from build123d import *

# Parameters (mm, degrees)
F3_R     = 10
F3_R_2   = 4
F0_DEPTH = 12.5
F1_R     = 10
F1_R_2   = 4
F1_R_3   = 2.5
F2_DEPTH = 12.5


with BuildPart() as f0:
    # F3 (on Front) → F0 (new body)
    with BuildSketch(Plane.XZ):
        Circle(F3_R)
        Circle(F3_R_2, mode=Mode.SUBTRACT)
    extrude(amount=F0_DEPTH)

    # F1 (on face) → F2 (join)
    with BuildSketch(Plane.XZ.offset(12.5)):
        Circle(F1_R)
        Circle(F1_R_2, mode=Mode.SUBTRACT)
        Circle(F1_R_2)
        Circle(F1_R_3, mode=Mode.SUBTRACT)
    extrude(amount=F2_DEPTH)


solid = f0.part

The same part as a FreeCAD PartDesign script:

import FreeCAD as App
import Part
import Sketcher

doc = App.newDocument("Part")
body = doc.addObject("PartDesign::Body", "Body")

# Sketch on XZ plane
sketch1 = body.newObject("Sketcher::SketchObject", "Sketch")
sketch1.AttachmentSupport = (doc.getObject("XZ_Plane"), [""])
sketch1.MapMode = "FlatFace"
sketch1.addGeometry(Part.Circle(App.Vector(0, 0, 0), App.Vector(0, 0, 1), 10), False)
sketch1.addGeometry(Part.Circle(App.Vector(0, 0, 0), App.Vector(0, 0, 1), 4), False)
sketch1.addConstraint(Sketcher.Constraint("Coincident", 0, 3, -1, 1))
sketch1.addConstraint(Sketcher.Constraint("Coincident", 1, 3, -1, 1))
sketch1.addConstraint(Sketcher.Constraint("Diameter", 0, 20.0))
sketch1.addConstraint(Sketcher.Constraint("Diameter", 1, 8.0))
pad1 = body.newObject("PartDesign::Pad", "Pad")
pad1.Profile = sketch1
pad1.Length = 12.5

# Sketch on XZ plane
sketch2 = body.newObject("Sketcher::SketchObject", "Sketch001")
sketch2.AttachmentSupport = (doc.getObject("XZ_Plane"), [""])
sketch2.MapMode = "FlatFace"
sketch2.AttachmentOffset = App.Placement(App.Vector(0, 0, 12.5), App.Rotation())
sketch2.addGeometry(Part.Circle(App.Vector(0, 0, 0), App.Vector(0, 0, 1), 10), False)
sketch2.addGeometry(Part.Circle(App.Vector(0, 0, 0), App.Vector(0, 0, 1), 2.5), False)
sketch2.addConstraint(Sketcher.Constraint("Coincident", 0, 3, -1, 1))
sketch2.addConstraint(Sketcher.Constraint("Coincident", 1, 3, -1, 1))
sketch2.addConstraint(Sketcher.Constraint("Diameter", 0, 20.0))
sketch2.addConstraint(Sketcher.Constraint("Diameter", 1, 5.0))
pad2 = body.newObject("PartDesign::Pad", "Pad001")
pad2.Profile = sketch2
pad2.Length = 12.5

doc.recompute()
